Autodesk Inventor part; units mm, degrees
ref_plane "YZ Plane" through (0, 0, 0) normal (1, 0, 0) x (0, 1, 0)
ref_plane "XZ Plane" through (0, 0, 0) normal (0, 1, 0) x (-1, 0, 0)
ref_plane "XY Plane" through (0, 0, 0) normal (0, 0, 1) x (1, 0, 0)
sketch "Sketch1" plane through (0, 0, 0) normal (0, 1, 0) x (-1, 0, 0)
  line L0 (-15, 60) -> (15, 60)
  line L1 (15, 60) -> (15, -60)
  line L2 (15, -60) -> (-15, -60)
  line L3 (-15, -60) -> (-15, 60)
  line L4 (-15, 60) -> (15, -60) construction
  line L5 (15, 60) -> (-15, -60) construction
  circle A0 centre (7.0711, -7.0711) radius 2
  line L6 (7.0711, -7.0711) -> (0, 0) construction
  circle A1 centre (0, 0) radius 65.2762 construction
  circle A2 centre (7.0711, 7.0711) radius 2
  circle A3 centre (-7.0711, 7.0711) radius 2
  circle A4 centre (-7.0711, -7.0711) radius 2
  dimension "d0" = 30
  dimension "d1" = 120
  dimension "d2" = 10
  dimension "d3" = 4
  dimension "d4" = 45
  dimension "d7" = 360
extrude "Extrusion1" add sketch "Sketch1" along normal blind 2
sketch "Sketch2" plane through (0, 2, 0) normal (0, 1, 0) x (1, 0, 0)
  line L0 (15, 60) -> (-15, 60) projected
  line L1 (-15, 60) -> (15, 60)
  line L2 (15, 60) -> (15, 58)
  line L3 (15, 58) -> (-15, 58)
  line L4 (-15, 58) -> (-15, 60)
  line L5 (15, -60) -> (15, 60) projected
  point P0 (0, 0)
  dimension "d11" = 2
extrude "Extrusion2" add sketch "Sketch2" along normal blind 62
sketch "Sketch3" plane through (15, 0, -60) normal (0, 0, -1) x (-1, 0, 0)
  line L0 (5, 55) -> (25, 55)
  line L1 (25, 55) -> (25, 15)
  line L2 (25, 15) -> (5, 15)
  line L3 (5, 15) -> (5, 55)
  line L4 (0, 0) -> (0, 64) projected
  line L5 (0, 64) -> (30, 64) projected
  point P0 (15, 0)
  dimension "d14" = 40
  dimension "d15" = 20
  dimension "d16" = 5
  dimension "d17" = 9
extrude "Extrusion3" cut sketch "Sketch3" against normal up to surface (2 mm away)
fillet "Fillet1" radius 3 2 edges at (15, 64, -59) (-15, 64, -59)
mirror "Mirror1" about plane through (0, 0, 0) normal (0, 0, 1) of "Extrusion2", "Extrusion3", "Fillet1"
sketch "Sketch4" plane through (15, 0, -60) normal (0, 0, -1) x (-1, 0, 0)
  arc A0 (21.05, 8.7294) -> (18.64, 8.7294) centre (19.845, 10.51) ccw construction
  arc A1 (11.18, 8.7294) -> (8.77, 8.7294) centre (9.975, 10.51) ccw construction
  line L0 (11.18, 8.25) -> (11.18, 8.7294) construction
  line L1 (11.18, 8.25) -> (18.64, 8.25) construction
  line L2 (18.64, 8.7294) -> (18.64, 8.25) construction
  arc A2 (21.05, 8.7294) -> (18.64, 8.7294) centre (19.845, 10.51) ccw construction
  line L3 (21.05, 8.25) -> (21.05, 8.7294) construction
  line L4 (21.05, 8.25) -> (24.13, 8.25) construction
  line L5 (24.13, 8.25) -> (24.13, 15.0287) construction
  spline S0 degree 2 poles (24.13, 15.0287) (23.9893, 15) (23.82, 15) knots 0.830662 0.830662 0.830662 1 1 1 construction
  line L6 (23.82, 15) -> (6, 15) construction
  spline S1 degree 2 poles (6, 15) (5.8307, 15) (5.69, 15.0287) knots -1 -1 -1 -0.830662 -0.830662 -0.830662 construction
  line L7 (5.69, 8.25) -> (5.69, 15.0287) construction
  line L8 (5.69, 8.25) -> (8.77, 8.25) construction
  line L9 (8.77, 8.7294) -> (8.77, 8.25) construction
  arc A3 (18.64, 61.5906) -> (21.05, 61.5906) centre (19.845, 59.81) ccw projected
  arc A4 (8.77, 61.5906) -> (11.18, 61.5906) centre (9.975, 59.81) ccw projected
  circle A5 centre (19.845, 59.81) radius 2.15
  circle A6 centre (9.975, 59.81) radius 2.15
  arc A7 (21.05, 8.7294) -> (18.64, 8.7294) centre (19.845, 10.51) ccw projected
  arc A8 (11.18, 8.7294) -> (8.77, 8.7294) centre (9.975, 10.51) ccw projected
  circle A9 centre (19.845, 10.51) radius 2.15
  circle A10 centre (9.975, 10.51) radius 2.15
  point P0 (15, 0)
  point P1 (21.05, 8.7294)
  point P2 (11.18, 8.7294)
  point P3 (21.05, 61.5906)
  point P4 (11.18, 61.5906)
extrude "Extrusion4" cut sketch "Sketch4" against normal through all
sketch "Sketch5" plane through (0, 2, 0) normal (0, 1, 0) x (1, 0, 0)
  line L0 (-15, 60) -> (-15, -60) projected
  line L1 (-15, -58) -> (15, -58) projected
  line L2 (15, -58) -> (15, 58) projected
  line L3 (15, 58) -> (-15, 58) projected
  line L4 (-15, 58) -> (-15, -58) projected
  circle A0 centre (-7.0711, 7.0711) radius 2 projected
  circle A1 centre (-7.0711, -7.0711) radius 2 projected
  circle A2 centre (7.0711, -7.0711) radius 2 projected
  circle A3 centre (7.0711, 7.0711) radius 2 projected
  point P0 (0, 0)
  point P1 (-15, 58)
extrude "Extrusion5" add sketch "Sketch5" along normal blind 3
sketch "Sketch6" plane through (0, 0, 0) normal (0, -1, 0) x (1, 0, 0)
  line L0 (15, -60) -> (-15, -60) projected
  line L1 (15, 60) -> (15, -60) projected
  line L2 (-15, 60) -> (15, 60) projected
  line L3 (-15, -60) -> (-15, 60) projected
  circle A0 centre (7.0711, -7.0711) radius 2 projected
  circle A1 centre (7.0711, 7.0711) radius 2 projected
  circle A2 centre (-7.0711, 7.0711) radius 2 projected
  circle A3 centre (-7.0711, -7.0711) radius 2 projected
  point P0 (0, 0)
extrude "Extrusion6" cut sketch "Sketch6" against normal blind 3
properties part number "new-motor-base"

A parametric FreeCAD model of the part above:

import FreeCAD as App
import Part
import Sketcher
Q = App.Units.Quantity


def edges_at(feature, points):
    """Names of the edges that pass closest to the given points."""
    edges = feature.Shape.Edges
    near = lambda p: min(range(len(edges)), key=lambda i: edges[i].distToShape(Part.Vertex(*p))[0])
    return sorted({f"Edge{near(p) + 1}" for p in points})


def add_polygon(sketch, points):
    """Adds a closed chain of lines whose ends are joined by coincident constraints."""
    first, n = sketch.GeometryCount, len(points)
    for a, b in zip(points, points[1:] + points[:1]):
        sketch.addGeometry(Part.LineSegment(App.Vector(*a, 0), App.Vector(*b, 0)), False)
    for i in range(n):
        sketch.addConstraint(Sketcher.Constraint("Coincident", first + i, 2, first + (i + 1) % n, 1))

doc = App.newDocument("Part")
body = doc.addObject("PartDesign::Body", "Body")

sketch1 = body.newObject("Sketcher::SketchObject", "Sketch")
sketch1.AttachmentSupport = (doc.getObject("XZ_Plane"), [""])
sketch1.MapMode = "FlatFace"
add_polygon(sketch1, [(-15, 60), (15, 60), (15, -60), (-15, -60)])
sketch1.addGeometry(Part.Circle(App.Vector(7.1, -7.1, 0), App.Vector(0, 0, 1), 2), False)
sketch1.addGeometry(Part.Circle(App.Vector(-7.1, -7.1, 0), App.Vector(0, 0, 1), 2), False)
sketch1.addGeometry(Part.Circle(App.Vector(7.1, 7.1, 0), App.Vector(0, 0, 1), 2), False)
sketch1.addGeometry(Part.Circle(App.Vector(-7.1, 7.1, 0), App.Vector(0, 0, 1), 2), False)
sketch1.addConstraint([
    Sketcher.Constraint("Horizontal", 0),
    Sketcher.Constraint("Vertical", 1),
    Sketcher.Constraint("Horizontal", 2),
    Sketcher.Constraint("Vertical", 3),
    Sketcher.Constraint("Equal", 4, 5),
    Sketcher.Constraint("Equal", 5, 6),
    Sketcher.Constraint("Equal", 6, 7),
    Sketcher.Constraint("Symmetric", 5, 3, 6, 3, -1, 1),
    Sketcher.Constraint("Symmetric", 4, 3, 7, 3, -1, 1),
    Sketcher.Constraint("Symmetric", 0, 2, 2, 2, -1, 1),
    Sketcher.Constraint("Symmetric", 4, 3, 5, 3, -2),
    Sketcher.Constraint("Diameter", 4, Q("4 mm")),
    Sketcher.Constraint("DistanceX", 0, 1, 0, 2, Q("30 mm")),
    Sketcher.Constraint("DistanceY", 1, 2, 1, 1, Q("120 mm")),
    Sketcher.Constraint("DistanceX", -1, 1, 4, 3, Q("7.071 mm")),
    Sketcher.Constraint("DistanceY", 4, 3, -1, 1, Q("7.071 mm")),
])
pad1 = body.newObject("PartDesign::Pad", "Pad")
pad1.Profile = sketch1
pad1.Length = 2
pad1.Reversed = True

sketch2 = body.newObject("Sketcher::SketchObject", "Sketch001")
sketch2.AttachmentSupport = (doc.getObject("XZ_Plane"), [""])
sketch2.MapMode = "FlatFace"
sketch2.AttachmentOffset = App.Placement(App.Vector(0, 0, -2), App.Rotation())
add_polygon(sketch2, [(15, -58), (15, -60), (-15, -60), (-15, -58)])
sketch2.addConstraint([
    Sketcher.Constraint("Vertical", 0),
    Sketcher.Constraint("Horizontal", 1),
    Sketcher.Constraint("Vertical", 2),
    Sketcher.Constraint("Horizontal", 3),
    Sketcher.Constraint("DistanceY", 0, 2, 0, 1, Q("2 mm")),
    Sketcher.Constraint("DistanceX", 1, 2, 1, 1, Q("30 mm")),
    Sketcher.Constraint("DistanceX", -1, 1, 0, 2, Q("15 mm")),
    Sketcher.Constraint("DistanceY", 0, 2, -1, 1, Q("60 mm")),
])
pad2 = body.newObject("PartDesign::Pad", "Pad001")
pad2.Profile = sketch2
pad2.Length = 62
pad2.Reversed = True

sketch3 = body.newObject("Sketcher::SketchObject", "Sketch002")
sketch3.AttachmentSupport = (doc.getObject("XY_Plane"), [""])
sketch3.MapMode = "FlatFace"
sketch3.AttachmentOffset = App.Placement(App.Vector(0, 0, -60), App.Rotation())
add_polygon(sketch3, [(-10, 55), (10, 55), (10, 15), (-10, 15)])
sketch3.addConstraint([
    Sketcher.Constraint("Horizontal", 0),
    Sketcher.Constraint("Vertical", 1),
    Sketcher.Constraint("Horizontal", 2),
    Sketcher.Constraint("Vertical", 3),
    Sketcher.Constraint("DistanceX", 0, 1, 0, 2, Q("20 mm")),
    Sketcher.Constraint("DistanceY", 1, 2, 1, 1, Q("40 mm")),
    Sketcher.Constraint("DistanceX", -1, 1, 0, 2, Q("10 mm")),
    Sketcher.Constraint("DistanceY", -1, 1, 0, 2, Q("55 mm")),
])
pocket1 = body.newObject("PartDesign::Pocket", "Pocket")
pocket1.Profile = sketch3
pocket1.Length = 2
pocket1.Reversed = True
doc.recompute()

fillet = body.newObject("PartDesign::Fillet", "Fillet")
fillet.Base = (pocket1, edges_at(pocket1, [(15, 64, -59), (-15, 64, -59)]))
fillet.Radius = 3
doc.recompute()

mirrored = body.newObject("PartDesign::Mirrored", "Mirrored")
mirrored.Originals = [pad2, pocket1, fillet]
mirrored.MirrorPlane = (doc.getObject("XY_Plane"), [""])
body.Tip = mirrored

sketch4 = body.newObject("Sketcher::SketchObject", "Sketch003")
sketch4.AttachmentSupport = (doc.getObject("XY_Plane"), [""])
sketch4.MapMode = "FlatFace"
sketch4.AttachmentOffset = App.Placement(App.Vector(0, 0, -60), App.Rotation())
sketch4.addGeometry([
    Part.Circle(App.Vector(-4.8, 59.8, 0), App.Vector(0, 0, 1), 2.2),
    Part.Circle(App.Vector(5, 59.8, 0), App.Vector(0, 0, 1), 2.2),
    Part.Circle(App.Vector(-4.8, 10.5, 0), App.Vector(0, 0, 1), 2.2),
    Part.Circle(App.Vector(5, 10.5, 0), App.Vector(0, 0, 1), 2.2),
], False)
sketch4.addConstraint([
    Sketcher.Constraint("Equal", 0, 1),
    Sketcher.Constraint("Equal", 1, 2),
    Sketcher.Constraint("Equal", 2, 3),
    Sketcher.Constraint("Horizontal", 0, 3, 1, 3),
    Sketcher.Constraint("Horizontal", 2, 3, 3, 3),
    Sketcher.Constraint("Vertical", 0, 3, 2, 3),
    Sketcher.Constraint("Vertical", 1, 3, 3, 3),
    Sketcher.Constraint("Diameter", 0, Q("4.3 mm")),
    Sketcher.Constraint("DistanceY", 2, 3, 0, 3, Q("49.3 mm")),
    Sketcher.Constraint("DistanceY", -1, 1, 0, 3, Q("59.81 mm")),
    Sketcher.Constraint("DistanceX", 0, 3, 1, 3, Q("9.87 mm")),
    Sketcher.Constraint("DistanceX", 0, 3, -1, 1, Q("4.845 mm")),
])
pocket2 = body.newObject("PartDesign::Pocket", "Pocket001")
pocket2.Profile = sketch4
pocket2.Type = "ThroughAll"
pocket2.Reversed = True

sketch5 = body.newObject("Sketcher::SketchObject", "Sketch004")
sketch5.AttachmentSupport = (doc.getObject("XZ_Plane"), [""])
sketch5.MapMode = "FlatFace"
sketch5.AttachmentOffset = App.Placement(App.Vector(0, 0, -2), App.Rotation())
add_polygon(sketch5, [(15, -58), (-15, -58), (-15, 58), (15, 58)])
sketch5.addGeometry(Part.Circle(App.Vector(-7.1, 7.1, 0), App.Vector(0, 0, 1), 2), False)
sketch5.addGeometry(Part.Circle(App.Vector(7.1, 7.1, 0), App.Vector(0, 0, 1), 2), False)
sketch5.addGeometry(Part.Circle(App.Vector(-7.1, -7.1, 0), App.Vector(0, 0, 1), 2), False)
sketch5.addGeometry(Part.Circle(App.Vector(7.1, -7.1, 0), App.Vector(0, 0, 1), 2), False)
sketch5.addConstraint([
    Sketcher.Constraint("Horizontal", 0),
    Sketcher.Constraint("Vertical", 1),
    Sketcher.Constraint("Horizontal", 2),
    Sketcher.Constraint("Vertical", 3),
    Sketcher.Constraint("Equal", 4, 5),
    Sketcher.Constraint("Equal", 5, 6),
    Sketcher.Constraint("Equal", 6, 7),
    Sketcher.Constraint("Symmetric", 5, 3, 6, 3, -1, 1),
    Sketcher.Constraint("Symmetric", 4, 3, 7, 3, -1, 1),
    Sketcher.Constraint("Symmetric", 0, 2, 2, 2, -1, 1),
    Sketcher.Constraint("Symmetric", 4, 3, 5, 3, -2),
    Sketcher.Constraint("Diameter", 4, Q("4 mm")),
    Sketcher.Constraint("DistanceX", 0, 2, 0, 1, Q("30 mm")),
    Sketcher.Constraint("DistanceY", 1, 1, 1, 2, Q("116 mm")),
    Sketcher.Constraint("DistanceX", 4, 3, -1, 1, Q("7.071 mm")),
    Sketcher.Constraint("DistanceY", -1, 1, 4, 3, Q("7.071 mm")),
])
pad3 = body.newObject("PartDesign::Pad", "Pad002")
pad3.Profile = sketch5
pad3.Length = 3
pad3.Reversed = True

sketch6 = body.newObject("Sketcher::SketchObject", "Sketch005")
sketch6.AttachmentSupport = (doc.getObject("XZ_Plane"), [""])
sketch6.MapMode = "FlatFace"
add_polygon(sketch6, [(-15, -60), (15, -60), (15, 60), (-15, 60)])
sketch6.addGeometry(Part.Circle(App.Vector(-7.1, -7.1, 0), App.Vector(0, 0, 1), 2), False)
sketch6.addGeometry(Part.Circle(App.Vector(7.1, -7.1, 0), App.Vector(0, 0, 1), 2), False)
sketch6.addGeometry(Part.Circle(App.Vector(-7.1, 7.1, 0), App.Vector(0, 0, 1), 2), False)
sketch6.addGeometry(Part.Circle(App.Vector(7.1, 7.1, 0), App.Vector(0, 0, 1), 2), False)
sketch6.addConstraint([
    Sketcher.Constraint("Horizontal", 0),
    Sketcher.Constraint("Vertical", 1),
    Sketcher.Constraint("Horizontal", 2),
    Sketcher.Constraint("Vertical", 3),
    Sketcher.Constraint("Equal", 4, 5),
    Sketcher.Constraint("Equal", 5, 6),
    Sketcher.Constraint("Equal", 6, 7),
    Sketcher.Constraint("Symmetric", 5, 3, 6, 3, -1, 1),
    Sketcher.Constraint("Symmetric", 4, 3, 7, 3, -1, 1),
    Sketcher.Constraint("Symmetric", 0, 2, 2, 2, -1, 1),
    Sketcher.Constraint("Symmetric", 4, 3, 5, 3, -2),
    Sketcher.Constraint("Diameter", 4, Q("4 mm")),
    Sketcher.Constraint("DistanceX", 0, 1, 0, 2, Q("30 mm")),
    Sketcher.Constraint("DistanceY", 1, 1, 1, 2, Q("120 mm")),
    Sketcher.Constraint("DistanceX", 4, 3, -1, 1, Q("7.071 mm")),
    Sketcher.Constraint("DistanceY", 4, 3, -1, 1, Q("7.071 mm")),
])
pocket3 = body.newObject("PartDesign::Pocket", "Pocket002")
pocket3.Profile = sketch6
pocket3.Length = 3

doc.recompute()
